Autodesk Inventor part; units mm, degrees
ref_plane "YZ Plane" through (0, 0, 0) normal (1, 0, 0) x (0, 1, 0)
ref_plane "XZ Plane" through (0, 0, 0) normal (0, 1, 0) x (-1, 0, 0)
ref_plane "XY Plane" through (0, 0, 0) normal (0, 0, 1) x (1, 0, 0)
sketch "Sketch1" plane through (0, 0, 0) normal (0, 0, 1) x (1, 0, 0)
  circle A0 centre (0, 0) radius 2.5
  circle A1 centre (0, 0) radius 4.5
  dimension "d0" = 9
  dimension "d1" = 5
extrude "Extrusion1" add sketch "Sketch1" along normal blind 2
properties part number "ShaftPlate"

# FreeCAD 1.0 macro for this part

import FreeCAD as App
import Part
import Sketcher

doc = App.newDocument("Part")
params = doc.addObject("Spreadsheet::Sheet", "Params")
for row, (alias, value) in enumerate([
    ("sketch1_diameter", "9 mm"),
    ("sketch1_diameter2", "5 mm"),
    ("pad1_length", "2 mm"),
], start=1):
    params.set(f"A{row}", alias)
    params.set(f"B{row}", "=" + value)
    params.setAlias(f"B{row}", alias)

body = doc.addObject("PartDesign::Body", "Body")

sketch1 = doc.addObject("Sketcher::SketchObject", "Sketch")
body.addObject(sketch1)
sketch1.AttachmentSupport = (doc.XY_Plane, [""])
sketch1.MapMode = "FlatFace"
sketch1.addGeometry(Part.Circle(App.Vector(0, 0, 0), App.Vector(0, 0, 1), 4.5), False)
sketch1.addGeometry(Part.Circle(App.Vector(0, 0, 0), App.Vector(0, 0, 1), 2.5), False)
sketch1.addConstraint(Sketcher.Constraint("Coincident", 0, 3, -1, 1))
sketch1.addConstraint(Sketcher.Constraint("Coincident", 1, 3, -1, 1))
sketch1.addConstraint(Sketcher.Constraint("Diameter", 0, 9.0))
sketch1.addConstraint(Sketcher.Constraint("Diameter", 1, 5.0))
sketch1.setExpression("Constraints[2]", "Params.sketch1_diameter")
sketch1.setExpression("Constraints[3]", "Params.sketch1_diameter2")
pad1 = doc.addObject("PartDesign::Pad", "Pad")
body.addObject(pad1)
pad1.Profile = sketch1
pad1.setExpression("Length", "Params.pad1_length")

doc.recompute()
